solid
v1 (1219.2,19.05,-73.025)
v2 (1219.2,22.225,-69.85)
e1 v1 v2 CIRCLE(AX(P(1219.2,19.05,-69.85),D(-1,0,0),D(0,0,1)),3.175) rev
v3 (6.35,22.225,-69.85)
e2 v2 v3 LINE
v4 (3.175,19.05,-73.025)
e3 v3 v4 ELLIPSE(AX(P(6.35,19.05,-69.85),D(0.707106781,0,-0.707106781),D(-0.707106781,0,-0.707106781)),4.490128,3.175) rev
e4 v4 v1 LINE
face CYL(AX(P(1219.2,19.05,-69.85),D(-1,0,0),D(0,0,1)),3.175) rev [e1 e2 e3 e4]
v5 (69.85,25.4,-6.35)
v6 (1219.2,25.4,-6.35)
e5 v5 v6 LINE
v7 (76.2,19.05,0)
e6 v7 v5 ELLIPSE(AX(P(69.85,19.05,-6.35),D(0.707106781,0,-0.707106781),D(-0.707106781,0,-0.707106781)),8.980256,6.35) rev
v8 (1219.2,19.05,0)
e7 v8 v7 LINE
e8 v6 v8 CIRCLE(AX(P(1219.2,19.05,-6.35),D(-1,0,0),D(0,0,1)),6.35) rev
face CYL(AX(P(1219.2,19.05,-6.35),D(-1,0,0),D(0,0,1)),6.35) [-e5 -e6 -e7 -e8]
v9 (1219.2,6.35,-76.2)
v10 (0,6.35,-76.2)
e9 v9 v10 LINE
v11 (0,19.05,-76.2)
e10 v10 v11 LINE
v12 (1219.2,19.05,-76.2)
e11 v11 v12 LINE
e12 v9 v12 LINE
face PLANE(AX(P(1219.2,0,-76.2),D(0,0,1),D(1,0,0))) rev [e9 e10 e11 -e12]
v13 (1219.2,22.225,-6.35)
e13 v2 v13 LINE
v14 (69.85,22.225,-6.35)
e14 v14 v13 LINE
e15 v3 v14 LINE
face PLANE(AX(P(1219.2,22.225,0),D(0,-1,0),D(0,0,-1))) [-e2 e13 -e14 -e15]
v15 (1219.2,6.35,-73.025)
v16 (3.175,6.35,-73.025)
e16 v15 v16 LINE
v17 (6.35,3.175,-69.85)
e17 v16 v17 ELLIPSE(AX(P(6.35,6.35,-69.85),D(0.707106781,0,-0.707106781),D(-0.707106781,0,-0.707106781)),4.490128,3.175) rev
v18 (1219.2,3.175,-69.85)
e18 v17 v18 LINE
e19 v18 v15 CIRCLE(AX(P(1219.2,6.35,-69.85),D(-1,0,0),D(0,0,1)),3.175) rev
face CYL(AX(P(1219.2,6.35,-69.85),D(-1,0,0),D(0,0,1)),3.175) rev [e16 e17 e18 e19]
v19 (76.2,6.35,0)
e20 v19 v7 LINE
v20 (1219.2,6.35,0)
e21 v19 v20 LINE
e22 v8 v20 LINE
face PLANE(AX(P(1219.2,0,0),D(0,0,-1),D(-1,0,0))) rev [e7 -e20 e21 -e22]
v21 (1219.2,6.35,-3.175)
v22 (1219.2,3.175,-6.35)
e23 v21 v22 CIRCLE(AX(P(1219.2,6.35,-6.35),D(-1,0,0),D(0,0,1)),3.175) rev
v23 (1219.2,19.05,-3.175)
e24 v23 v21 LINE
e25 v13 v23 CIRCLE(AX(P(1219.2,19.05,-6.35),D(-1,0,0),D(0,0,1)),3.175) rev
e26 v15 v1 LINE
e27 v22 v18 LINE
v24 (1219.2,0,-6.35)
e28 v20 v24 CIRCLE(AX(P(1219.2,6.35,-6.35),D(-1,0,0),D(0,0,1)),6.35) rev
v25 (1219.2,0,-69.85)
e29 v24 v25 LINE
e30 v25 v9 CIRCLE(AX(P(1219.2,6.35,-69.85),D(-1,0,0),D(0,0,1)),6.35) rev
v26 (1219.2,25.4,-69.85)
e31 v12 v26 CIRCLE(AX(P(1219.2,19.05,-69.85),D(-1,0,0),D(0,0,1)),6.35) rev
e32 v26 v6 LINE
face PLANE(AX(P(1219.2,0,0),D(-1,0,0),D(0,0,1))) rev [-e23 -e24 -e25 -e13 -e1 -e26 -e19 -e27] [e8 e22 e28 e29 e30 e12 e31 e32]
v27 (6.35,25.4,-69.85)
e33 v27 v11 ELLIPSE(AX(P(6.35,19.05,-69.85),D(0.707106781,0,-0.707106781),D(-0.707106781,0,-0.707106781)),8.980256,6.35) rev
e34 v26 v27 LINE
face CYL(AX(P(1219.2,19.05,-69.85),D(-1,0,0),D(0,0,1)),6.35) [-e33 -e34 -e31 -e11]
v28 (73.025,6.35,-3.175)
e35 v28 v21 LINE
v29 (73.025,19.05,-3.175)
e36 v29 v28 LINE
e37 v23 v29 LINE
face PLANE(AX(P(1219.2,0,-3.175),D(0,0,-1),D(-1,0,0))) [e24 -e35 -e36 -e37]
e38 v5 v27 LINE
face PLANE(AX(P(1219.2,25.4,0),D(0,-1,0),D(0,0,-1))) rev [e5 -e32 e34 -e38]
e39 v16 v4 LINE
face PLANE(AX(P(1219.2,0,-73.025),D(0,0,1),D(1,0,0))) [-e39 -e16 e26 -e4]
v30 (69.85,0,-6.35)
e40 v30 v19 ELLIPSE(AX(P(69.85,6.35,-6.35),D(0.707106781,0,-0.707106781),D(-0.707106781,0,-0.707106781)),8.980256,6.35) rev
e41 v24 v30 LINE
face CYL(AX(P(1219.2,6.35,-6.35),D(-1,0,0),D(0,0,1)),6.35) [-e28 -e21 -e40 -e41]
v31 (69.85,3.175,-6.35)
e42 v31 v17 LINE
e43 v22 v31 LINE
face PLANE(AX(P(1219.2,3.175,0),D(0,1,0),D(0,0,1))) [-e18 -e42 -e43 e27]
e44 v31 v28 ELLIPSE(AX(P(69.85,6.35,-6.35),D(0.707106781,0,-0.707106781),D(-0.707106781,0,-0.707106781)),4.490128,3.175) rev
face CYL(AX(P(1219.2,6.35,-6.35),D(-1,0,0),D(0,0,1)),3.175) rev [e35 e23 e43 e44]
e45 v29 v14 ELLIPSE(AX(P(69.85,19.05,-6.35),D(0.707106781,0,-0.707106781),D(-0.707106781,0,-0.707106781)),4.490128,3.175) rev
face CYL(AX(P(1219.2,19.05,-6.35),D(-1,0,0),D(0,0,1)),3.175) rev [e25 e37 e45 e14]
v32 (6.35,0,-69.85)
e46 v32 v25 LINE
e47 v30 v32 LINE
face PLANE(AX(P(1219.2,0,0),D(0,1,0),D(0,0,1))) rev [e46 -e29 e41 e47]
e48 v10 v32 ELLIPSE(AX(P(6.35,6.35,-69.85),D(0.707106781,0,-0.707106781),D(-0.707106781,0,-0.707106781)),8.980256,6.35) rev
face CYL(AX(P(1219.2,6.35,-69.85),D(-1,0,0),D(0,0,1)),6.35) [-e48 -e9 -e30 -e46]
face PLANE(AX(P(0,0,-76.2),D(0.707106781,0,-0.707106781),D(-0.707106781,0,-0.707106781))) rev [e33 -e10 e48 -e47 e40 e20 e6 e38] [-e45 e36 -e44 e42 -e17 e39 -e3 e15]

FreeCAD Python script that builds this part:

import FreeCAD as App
import Part
import Sketcher

V = App.Vector
Q = App.Units.Quantity


def edges_at(feature, points):
    """Names of the edges that pass closest to the given points."""
    edges = feature.Shape.Edges
    near = lambda p: min(range(len(edges)), key=lambda i: edges[i].distToShape(Part.Vertex(*p))[0])
    return sorted({f"Edge{near(p) + 1}" for p in points})


def faces_at(feature, points):
    """Names of the faces that lie closest to the given points."""
    faces = feature.Shape.Faces
    near = lambda p: min(range(len(faces)), key=lambda i: faces[i].distToShape(Part.Vertex(*p))[0])
    return sorted({f"Face{near(p) + 1}" for p in points})

doc = App.newDocument("Part")
body = doc.addObject("PartDesign::Body", "Body")

sketch1 = doc.addObject("Sketcher::SketchObject", "Sketch")
body.addObject(sketch1)
sketch1.AttachmentSupport = (doc.YZ_Plane, [""])
sketch1.MapMode = "FlatFace"
sketch1.addGeometry([
    Part.LineSegment(V(25, 0, 0), V(0, 0, 0)),
    Part.LineSegment(V(0, 0, 0), V(0, -76, 0)),
    Part.LineSegment(V(0, -76, 0), V(25, -76, 0)),
    Part.LineSegment(V(25, -76, 0), V(25, 0, 0)),
], False)
sketch1.addConstraint([
    Sketcher.Constraint("Coincident", 0, 2, 1, 1),
    Sketcher.Constraint("Coincident", 1, 2, 2, 1),
    Sketcher.Constraint("Coincident", 2, 2, 3, 1),
    Sketcher.Constraint("Coincident", 3, 2, 0, 1),
    Sketcher.Constraint("Horizontal", 0),
    Sketcher.Constraint("Vertical", 1),
    Sketcher.Constraint("Horizontal", 2),
    Sketcher.Constraint("Vertical", 3),
    Sketcher.Constraint("Coincident", 0, 2, -1, 1),
    Sketcher.Constraint("DistanceX", 0, 2, 0, 1, Q("1 in")),
    Sketcher.Constraint("DistanceY", 1, 2, 1, 1, Q("3 in")),
])
pad1 = doc.addObject("PartDesign::Pad", "Pad")
body.addObject(pad1)
pad1.Profile = sketch1
pad1.Length = Q("48 in")
doc.recompute()

fillet = doc.addObject("PartDesign::Fillet", "Fillet")
body.addObject(fillet)
fillet.Base = (pad1, edges_at(pad1, [
    (609.6, 25.4, 0),
    (609.6, 25.4, -76.2),
    (609.6, 0, -76.2),
    (609.6, 0, 0),
]))
fillet.Radius = Q("0.25 in")
doc.recompute()

thickness = doc.addObject("PartDesign::Thickness", "Thickness")
body.addObject(thickness)
thickness.Base = (fillet, faces_at(fillet, [(1219.2, 12.7, -38.1), (0, 12.7, -38.1)]))
thickness.Value = Q("0.125 in")
thickness.Reversed = True
thickness.Join = "Intersection"

sketch2 = doc.addObject("Sketcher::SketchObject", "Sketch001")
body.addObject(sketch2)
sketch2.AttachmentSupport = (doc.XZ_Plane, [""])
sketch2.MapMode = "FlatFace"
sketch2.AttachmentOffset = App.Placement(V(0, 0, -1 * 25.4), App.Rotation())
sketch2.addGeometry([
    Part.LineSegment(V(76, 0, 0), V(0, -76, 0)),
    Part.LineSegment(V(0, -76, 0), V(0, 0, 0)),
    Part.LineSegment(V(0, 0, 0), V(76, 0, 0)),
], False)
sketch2.addConstraint([
    Sketcher.Constraint("Coincident", 0, 2, 1, 1),
    Sketcher.Constraint("Coincident", 1, 2, 2, 1),
    Sketcher.Constraint("Coincident", 2, 2, 0, 1),
    Sketcher.Constraint("Vertical", 1),
    Sketcher.Constraint("Horizontal", 2),
    Sketcher.Constraint("Coincident", 1, 2, -1, 1),
    Sketcher.Constraint("Equal", 2, 1),
    Sketcher.Constraint("DistanceX", 2, 1, 2, 2, Q("3 in")),
])
pocket1 = doc.addObject("PartDesign::Pocket", "Pocket")
body.addObject(pocket1)
pocket1.Profile = sketch2
pocket1.Length = Q("1 in")
pocket1.Reversed = True

doc.recompute()
